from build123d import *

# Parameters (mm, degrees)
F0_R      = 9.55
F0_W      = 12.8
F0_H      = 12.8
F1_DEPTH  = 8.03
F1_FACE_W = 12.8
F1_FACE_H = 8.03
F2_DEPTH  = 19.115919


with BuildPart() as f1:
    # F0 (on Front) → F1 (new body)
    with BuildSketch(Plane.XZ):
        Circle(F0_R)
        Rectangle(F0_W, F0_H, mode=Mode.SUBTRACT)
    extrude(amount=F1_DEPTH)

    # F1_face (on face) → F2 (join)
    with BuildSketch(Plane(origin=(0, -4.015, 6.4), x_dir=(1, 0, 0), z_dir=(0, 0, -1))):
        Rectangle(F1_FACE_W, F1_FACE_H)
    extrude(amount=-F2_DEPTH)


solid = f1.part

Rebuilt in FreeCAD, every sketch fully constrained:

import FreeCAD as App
import Part
import Sketcher

V = App.Vector

doc = App.newDocument("Part")
body = doc.addObject("PartDesign::Body", "Body")

# Sketch on XZ plane
sketch1 = doc.addObject("Sketcher::SketchObject", "Sketch")
body.addObject(sketch1)
sketch1.AttachmentSupport = (doc.XZ_Plane, [""])
sketch1.MapMode = "FlatFace"
sketch1.addGeometry(Part.Circle(V(0, 0, 0), V(0, 0, 1), 10), False)
sketch1.addGeometry(Part.LineSegment(V(6, -6, 0), V(-6, -6, 0)), False)
sketch1.addGeometry(Part.LineSegment(V(-6, -6, 0), V(-6, 6, 0)), False)
sketch1.addGeometry(Part.LineSegment(V(-6, 6, 0), V(6, 6, 0)), False)
sketch1.addGeometry(Part.LineSegment(V(6, 6, 0), V(6, -6, 0)), False)
sketch1.addConstraint(Sketcher.Constraint("Coincident", 1, 2, 2, 1))
sketch1.addConstraint(Sketcher.Constraint("Coincident", 2, 2, 3, 1))
sketch1.addConstraint(Sketcher.Constraint("Coincident", 3, 2, 4, 1))
sketch1.addConstraint(Sketcher.Constraint("Coincident", 4, 2, 1, 1))
sketch1.addConstraint(Sketcher.Constraint("Horizontal", 1))
sketch1.addConstraint(Sketcher.Constraint("Vertical", 2))
sketch1.addConstraint(Sketcher.Constraint("Horizontal", 3))
sketch1.addConstraint(Sketcher.Constraint("Vertical", 4))
sketch1.addConstraint(Sketcher.Constraint("Coincident", 0, 3, -1, 1))
sketch1.addConstraint(Sketcher.Constraint("Symmetric", 1, 2, 3, 2, -1, 1))
sketch1.addConstraint(Sketcher.Constraint("Equal", 3, 2))
sketch1.addConstraint(Sketcher.Constraint("Diameter", 0, 19.1))
sketch1.addConstraint(Sketcher.Constraint("DistanceX", 1, 2, 1, 1, 12.8))
pad1 = doc.addObject("PartDesign::Pad", "Pad")
body.addObject(pad1)
pad1.Profile = sketch1
pad1.Length = 8.03

# Sketch on XY plane
sketch2 = doc.addObject("Sketcher::SketchObject", "Sketch001")
body.addObject(sketch2)
sketch2.AttachmentSupport = (doc.XY_Plane, [""])
sketch2.MapMode = "FlatFace"
sketch2.AttachmentOffset = App.Placement(V(0, 0, 6.4), App.Rotation())
sketch2.addGeometry(Part.LineSegment(V(-6, -8, 0), V(-6, 0, 0)), False)
sketch2.addGeometry(Part.LineSegment(V(-6, 0, 0), V(6, 0, 0)), False)
sketch2.addGeometry(Part.LineSegment(V(6, 0, 0), V(6, -8, 0)), False)
sketch2.addGeometry(Part.LineSegment(V(6, -8, 0), V(-6, -8, 0)), False)
sketch2.addConstraint(Sketcher.Constraint("Coincident", 0, 2, 1, 1))
sketch2.addConstraint(Sketcher.Constraint("Coincident", 1, 2, 2, 1))
sketch2.addConstraint(Sketcher.Constraint("Coincident", 2, 2, 3, 1))
sketch2.addConstraint(Sketcher.Constraint("Coincident", 3, 2, 0, 1))
sketch2.addConstraint(Sketcher.Constraint("Vertical", 0))
sketch2.addConstraint(Sketcher.Constraint("Horizontal", 1))
sketch2.addConstraint(Sketcher.Constraint("Vertical", 2))
sketch2.addConstraint(Sketcher.Constraint("Horizontal", 3))
sketch2.addConstraint(Sketcher.Constraint("Symmetric", 0, 2, 1, 2, -1, 1))
sketch2.addConstraint(Sketcher.Constraint("DistanceX", 1, 1, 1, 2, 12.8))
sketch2.addConstraint(Sketcher.Constraint("DistanceY", 0, 1, 0, 2, 8.03))
pad2 = doc.addObject("PartDesign::Pad", "Pad001")
body.addObject(pad2)
pad2.Profile = sketch2
pad2.Length = 19.115919

doc.recompute()
